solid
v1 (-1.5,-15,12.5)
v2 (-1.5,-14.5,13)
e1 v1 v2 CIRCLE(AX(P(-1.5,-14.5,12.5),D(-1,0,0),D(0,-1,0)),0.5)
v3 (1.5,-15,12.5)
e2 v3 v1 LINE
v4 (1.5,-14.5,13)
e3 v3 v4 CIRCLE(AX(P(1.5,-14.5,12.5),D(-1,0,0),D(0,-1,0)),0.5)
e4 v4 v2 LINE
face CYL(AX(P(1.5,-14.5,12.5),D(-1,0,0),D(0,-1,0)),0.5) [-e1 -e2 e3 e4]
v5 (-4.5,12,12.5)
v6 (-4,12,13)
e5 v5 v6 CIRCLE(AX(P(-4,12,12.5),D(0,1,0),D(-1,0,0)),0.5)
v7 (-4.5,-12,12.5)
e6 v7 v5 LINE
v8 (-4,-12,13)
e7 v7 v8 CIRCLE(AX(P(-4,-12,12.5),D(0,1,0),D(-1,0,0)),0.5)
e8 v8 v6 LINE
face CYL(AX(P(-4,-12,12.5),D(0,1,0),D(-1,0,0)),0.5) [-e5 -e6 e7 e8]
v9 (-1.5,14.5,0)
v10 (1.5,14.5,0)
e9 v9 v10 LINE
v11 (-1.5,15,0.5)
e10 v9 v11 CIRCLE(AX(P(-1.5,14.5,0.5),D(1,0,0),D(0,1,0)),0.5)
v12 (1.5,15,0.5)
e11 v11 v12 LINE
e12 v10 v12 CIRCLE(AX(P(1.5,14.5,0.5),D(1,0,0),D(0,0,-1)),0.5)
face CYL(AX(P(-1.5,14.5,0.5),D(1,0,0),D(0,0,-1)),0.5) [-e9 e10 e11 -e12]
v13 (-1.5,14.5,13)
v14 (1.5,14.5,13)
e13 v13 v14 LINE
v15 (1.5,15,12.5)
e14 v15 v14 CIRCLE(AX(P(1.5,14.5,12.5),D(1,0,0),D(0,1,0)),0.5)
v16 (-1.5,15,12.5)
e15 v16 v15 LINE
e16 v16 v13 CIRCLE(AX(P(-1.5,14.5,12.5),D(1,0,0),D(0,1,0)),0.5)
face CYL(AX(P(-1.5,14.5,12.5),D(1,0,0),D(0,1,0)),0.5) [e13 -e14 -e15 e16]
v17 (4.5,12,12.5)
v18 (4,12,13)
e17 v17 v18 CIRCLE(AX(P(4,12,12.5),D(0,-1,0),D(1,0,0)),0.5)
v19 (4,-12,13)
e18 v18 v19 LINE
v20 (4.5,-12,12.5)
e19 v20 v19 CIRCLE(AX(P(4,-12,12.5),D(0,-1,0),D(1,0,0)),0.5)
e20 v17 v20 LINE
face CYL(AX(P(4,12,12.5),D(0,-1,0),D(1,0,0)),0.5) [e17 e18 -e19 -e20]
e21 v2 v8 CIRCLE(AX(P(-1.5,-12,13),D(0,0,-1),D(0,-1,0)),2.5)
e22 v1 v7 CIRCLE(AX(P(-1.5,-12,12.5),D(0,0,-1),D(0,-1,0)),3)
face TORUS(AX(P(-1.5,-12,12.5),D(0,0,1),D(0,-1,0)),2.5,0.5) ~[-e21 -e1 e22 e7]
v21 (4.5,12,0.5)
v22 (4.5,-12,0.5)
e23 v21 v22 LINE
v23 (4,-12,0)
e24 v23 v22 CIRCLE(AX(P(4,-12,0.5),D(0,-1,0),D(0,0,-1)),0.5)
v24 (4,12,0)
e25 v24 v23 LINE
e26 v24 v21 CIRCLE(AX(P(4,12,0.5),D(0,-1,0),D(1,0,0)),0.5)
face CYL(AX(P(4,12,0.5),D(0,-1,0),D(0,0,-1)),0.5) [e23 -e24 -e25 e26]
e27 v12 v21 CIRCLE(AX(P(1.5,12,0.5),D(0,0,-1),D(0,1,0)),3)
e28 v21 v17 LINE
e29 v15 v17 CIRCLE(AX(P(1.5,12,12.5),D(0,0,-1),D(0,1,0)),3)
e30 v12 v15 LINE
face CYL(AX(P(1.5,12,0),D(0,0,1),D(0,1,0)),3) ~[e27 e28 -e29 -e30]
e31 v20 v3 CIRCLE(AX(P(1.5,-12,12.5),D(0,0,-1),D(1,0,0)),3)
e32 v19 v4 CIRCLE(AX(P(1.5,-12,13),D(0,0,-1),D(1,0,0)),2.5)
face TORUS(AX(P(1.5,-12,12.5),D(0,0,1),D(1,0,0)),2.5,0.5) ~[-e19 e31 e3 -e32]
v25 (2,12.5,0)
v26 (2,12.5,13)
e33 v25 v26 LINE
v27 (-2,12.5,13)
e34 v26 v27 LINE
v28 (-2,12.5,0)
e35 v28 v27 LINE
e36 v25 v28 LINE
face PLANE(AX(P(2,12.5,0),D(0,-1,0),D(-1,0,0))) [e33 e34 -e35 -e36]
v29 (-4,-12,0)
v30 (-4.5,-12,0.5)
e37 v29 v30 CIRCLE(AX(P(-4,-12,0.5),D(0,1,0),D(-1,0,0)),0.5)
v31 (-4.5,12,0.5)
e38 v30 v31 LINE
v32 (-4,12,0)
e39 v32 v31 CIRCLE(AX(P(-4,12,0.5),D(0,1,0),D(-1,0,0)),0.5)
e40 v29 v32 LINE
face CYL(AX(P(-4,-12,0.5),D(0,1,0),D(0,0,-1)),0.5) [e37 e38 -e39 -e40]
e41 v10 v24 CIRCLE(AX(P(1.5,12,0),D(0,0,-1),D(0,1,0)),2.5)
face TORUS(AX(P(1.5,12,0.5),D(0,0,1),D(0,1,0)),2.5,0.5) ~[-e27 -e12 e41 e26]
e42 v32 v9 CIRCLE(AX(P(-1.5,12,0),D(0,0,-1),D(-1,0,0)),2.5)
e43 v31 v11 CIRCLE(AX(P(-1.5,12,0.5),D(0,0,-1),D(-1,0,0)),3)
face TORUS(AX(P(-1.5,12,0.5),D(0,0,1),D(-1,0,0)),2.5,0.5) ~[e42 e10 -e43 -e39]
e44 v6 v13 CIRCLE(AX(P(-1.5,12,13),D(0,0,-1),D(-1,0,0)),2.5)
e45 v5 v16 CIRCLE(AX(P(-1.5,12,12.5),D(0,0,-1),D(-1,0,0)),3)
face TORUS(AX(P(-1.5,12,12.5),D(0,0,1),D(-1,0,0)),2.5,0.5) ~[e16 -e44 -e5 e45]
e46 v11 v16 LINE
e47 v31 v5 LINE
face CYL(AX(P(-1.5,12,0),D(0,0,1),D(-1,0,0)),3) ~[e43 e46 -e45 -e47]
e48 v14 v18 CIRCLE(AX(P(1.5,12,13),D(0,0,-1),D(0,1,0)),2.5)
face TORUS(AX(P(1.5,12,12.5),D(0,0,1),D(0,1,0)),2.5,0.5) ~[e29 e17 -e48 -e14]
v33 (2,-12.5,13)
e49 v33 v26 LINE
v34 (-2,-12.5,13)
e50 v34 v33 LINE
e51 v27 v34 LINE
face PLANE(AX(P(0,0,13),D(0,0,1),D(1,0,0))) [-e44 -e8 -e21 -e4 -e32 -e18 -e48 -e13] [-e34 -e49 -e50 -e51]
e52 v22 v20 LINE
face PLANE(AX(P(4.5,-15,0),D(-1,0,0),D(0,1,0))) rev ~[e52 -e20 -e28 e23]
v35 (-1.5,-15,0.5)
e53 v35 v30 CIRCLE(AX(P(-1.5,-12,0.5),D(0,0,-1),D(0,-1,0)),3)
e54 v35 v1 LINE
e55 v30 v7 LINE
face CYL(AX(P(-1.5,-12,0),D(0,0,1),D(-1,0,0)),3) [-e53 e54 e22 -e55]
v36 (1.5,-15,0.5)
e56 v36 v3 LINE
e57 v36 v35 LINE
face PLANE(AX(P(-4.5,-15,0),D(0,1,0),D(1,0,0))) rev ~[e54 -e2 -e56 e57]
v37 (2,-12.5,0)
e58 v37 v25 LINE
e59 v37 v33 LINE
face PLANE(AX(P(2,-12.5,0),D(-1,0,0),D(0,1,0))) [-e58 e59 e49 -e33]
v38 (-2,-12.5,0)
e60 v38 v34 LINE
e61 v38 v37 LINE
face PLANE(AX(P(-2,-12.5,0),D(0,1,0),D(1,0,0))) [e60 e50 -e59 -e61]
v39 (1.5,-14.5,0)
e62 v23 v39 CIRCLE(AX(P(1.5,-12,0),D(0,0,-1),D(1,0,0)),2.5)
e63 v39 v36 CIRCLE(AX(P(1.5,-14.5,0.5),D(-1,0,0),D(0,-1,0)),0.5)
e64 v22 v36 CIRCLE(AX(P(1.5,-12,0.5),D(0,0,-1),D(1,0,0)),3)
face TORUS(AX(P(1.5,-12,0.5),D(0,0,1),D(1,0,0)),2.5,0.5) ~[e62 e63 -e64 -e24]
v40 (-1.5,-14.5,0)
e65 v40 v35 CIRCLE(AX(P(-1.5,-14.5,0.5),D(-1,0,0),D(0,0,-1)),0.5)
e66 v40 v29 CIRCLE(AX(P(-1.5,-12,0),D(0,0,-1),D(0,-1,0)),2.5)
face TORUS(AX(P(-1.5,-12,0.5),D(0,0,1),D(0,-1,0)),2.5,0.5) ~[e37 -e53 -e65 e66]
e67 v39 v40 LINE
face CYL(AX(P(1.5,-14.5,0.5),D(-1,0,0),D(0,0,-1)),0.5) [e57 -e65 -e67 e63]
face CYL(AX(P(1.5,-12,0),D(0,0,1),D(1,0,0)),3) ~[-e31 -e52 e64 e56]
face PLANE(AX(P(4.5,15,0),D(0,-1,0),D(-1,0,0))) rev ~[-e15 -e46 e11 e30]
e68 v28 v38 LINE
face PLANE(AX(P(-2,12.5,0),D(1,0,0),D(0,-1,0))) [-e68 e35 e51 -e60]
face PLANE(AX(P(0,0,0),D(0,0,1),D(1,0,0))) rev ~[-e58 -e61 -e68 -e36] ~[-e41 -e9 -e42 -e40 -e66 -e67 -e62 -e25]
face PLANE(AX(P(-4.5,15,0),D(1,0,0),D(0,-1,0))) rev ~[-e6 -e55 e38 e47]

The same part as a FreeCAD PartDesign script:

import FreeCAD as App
import Part
import Sketcher
Q = App.Units.Quantity


def edges_at(feature, points):
    """Names of the edges that pass closest to the given points."""
    edges = feature.Shape.Edges
    near = lambda p: min(range(len(edges)), key=lambda i: edges[i].distToShape(Part.Vertex(*p))[0])
    return sorted({f"Edge{near(p) + 1}" for p in points})


def add_polygon(sketch, points):
    """Adds a closed chain of lines whose ends are joined by coincident constraints."""
    first, n = sketch.GeometryCount, len(points)
    for a, b in zip(points, points[1:] + points[:1]):
        sketch.addGeometry(Part.LineSegment(App.Vector(*a, 0), App.Vector(*b, 0)), False)
    for i in range(n):
        sketch.addConstraint(Sketcher.Constraint("Coincident", first + i, 2, first + (i + 1) % n, 1))

doc = App.newDocument("Part")
body = doc.addObject("PartDesign::Body", "Body")

# Sketch on XY plane
sketch1 = body.newObject("Sketcher::SketchObject", "Sketch")
sketch1.AttachmentSupport = (doc.getObject("XY_Plane"), [""])
sketch1.MapMode = "FlatFace"
add_polygon(sketch1, [(-4.5, 15), (-4.5, -15), (4.5, -15), (4.5, 15)])  # lines 0-3
add_polygon(sketch1, [(2, -12.5), (-2, -12.5), (-2, 12.5), (2, 12.5)])  # lines 4-7
sketch1.addConstraint(Sketcher.Constraint("Vertical", 0))
sketch1.addConstraint(Sketcher.Constraint("Horizontal", 1))
sketch1.addConstraint(Sketcher.Constraint("Vertical", 2))
sketch1.addConstraint(Sketcher.Constraint("Horizontal", 3))
sketch1.addConstraint(Sketcher.Constraint("Horizontal", 4))
sketch1.addConstraint(Sketcher.Constraint("Vertical", 5))
sketch1.addConstraint(Sketcher.Constraint("Horizontal", 6))
sketch1.addConstraint(Sketcher.Constraint("Vertical", 7))
sketch1.addConstraint(Sketcher.Constraint("Symmetric", 0, 2, 2, 2, -1, 1))
sketch1.addConstraint(Sketcher.Constraint("Symmetric", 4, 2, 6, 2, -1, 1))
sketch1.addConstraint(Sketcher.Constraint("DistanceX", 1, 1, 1, 2, Q("9 mm")))
sketch1.addConstraint(Sketcher.Constraint("DistanceX", 4, 2, 4, 1, Q("4 mm")))
sketch1.addConstraint(Sketcher.Constraint("DistanceY", 0, 2, 0, 1, Q("30 mm")))
sketch1.addConstraint(Sketcher.Constraint("DistanceY", 5, 1, 5, 2, Q("25 mm")))
pad1 = body.newObject("PartDesign::Pad", "Pad")
pad1.Profile = sketch1
pad1.Length = 13
doc.recompute()

fillet = body.newObject("PartDesign::Fillet", "Fillet")
fillet.Base = (pad1, edges_at(pad1, [
    (-4.5, 15, 6.5),
    (4.5, 15, 6.5),
    (4.5, -15, 6.5),
    (-4.5, -15, 6.5),
]))
fillet.Radius = 3
doc.recompute()

fillet2 = body.newObject("PartDesign::Fillet", "Fillet001")
fillet2.Base = (fillet, edges_at(fillet, [
    (-3.621, 14.121, 13),
    (-4.5, 0, 13),
    (-3.621, -14.121, 13),
    (0, -15, 13),
    (3.621, -14.121, 13),
    (4.5, 0, 13),
    (3.621, 14.121, 13),
    (0, 15, 13),
    (-3.621, 14.121, 0),
    (-4.5, 0, 0),
    (-3.621, -14.121, 0),
    (0, -15, 0),
    (3.621, -14.121, 0),
    (4.5, 0, 0),
    (3.621, 14.121, 0),
    (0, 15, 0),
]))
fillet2.Radius = 0.5

doc.recompute()
